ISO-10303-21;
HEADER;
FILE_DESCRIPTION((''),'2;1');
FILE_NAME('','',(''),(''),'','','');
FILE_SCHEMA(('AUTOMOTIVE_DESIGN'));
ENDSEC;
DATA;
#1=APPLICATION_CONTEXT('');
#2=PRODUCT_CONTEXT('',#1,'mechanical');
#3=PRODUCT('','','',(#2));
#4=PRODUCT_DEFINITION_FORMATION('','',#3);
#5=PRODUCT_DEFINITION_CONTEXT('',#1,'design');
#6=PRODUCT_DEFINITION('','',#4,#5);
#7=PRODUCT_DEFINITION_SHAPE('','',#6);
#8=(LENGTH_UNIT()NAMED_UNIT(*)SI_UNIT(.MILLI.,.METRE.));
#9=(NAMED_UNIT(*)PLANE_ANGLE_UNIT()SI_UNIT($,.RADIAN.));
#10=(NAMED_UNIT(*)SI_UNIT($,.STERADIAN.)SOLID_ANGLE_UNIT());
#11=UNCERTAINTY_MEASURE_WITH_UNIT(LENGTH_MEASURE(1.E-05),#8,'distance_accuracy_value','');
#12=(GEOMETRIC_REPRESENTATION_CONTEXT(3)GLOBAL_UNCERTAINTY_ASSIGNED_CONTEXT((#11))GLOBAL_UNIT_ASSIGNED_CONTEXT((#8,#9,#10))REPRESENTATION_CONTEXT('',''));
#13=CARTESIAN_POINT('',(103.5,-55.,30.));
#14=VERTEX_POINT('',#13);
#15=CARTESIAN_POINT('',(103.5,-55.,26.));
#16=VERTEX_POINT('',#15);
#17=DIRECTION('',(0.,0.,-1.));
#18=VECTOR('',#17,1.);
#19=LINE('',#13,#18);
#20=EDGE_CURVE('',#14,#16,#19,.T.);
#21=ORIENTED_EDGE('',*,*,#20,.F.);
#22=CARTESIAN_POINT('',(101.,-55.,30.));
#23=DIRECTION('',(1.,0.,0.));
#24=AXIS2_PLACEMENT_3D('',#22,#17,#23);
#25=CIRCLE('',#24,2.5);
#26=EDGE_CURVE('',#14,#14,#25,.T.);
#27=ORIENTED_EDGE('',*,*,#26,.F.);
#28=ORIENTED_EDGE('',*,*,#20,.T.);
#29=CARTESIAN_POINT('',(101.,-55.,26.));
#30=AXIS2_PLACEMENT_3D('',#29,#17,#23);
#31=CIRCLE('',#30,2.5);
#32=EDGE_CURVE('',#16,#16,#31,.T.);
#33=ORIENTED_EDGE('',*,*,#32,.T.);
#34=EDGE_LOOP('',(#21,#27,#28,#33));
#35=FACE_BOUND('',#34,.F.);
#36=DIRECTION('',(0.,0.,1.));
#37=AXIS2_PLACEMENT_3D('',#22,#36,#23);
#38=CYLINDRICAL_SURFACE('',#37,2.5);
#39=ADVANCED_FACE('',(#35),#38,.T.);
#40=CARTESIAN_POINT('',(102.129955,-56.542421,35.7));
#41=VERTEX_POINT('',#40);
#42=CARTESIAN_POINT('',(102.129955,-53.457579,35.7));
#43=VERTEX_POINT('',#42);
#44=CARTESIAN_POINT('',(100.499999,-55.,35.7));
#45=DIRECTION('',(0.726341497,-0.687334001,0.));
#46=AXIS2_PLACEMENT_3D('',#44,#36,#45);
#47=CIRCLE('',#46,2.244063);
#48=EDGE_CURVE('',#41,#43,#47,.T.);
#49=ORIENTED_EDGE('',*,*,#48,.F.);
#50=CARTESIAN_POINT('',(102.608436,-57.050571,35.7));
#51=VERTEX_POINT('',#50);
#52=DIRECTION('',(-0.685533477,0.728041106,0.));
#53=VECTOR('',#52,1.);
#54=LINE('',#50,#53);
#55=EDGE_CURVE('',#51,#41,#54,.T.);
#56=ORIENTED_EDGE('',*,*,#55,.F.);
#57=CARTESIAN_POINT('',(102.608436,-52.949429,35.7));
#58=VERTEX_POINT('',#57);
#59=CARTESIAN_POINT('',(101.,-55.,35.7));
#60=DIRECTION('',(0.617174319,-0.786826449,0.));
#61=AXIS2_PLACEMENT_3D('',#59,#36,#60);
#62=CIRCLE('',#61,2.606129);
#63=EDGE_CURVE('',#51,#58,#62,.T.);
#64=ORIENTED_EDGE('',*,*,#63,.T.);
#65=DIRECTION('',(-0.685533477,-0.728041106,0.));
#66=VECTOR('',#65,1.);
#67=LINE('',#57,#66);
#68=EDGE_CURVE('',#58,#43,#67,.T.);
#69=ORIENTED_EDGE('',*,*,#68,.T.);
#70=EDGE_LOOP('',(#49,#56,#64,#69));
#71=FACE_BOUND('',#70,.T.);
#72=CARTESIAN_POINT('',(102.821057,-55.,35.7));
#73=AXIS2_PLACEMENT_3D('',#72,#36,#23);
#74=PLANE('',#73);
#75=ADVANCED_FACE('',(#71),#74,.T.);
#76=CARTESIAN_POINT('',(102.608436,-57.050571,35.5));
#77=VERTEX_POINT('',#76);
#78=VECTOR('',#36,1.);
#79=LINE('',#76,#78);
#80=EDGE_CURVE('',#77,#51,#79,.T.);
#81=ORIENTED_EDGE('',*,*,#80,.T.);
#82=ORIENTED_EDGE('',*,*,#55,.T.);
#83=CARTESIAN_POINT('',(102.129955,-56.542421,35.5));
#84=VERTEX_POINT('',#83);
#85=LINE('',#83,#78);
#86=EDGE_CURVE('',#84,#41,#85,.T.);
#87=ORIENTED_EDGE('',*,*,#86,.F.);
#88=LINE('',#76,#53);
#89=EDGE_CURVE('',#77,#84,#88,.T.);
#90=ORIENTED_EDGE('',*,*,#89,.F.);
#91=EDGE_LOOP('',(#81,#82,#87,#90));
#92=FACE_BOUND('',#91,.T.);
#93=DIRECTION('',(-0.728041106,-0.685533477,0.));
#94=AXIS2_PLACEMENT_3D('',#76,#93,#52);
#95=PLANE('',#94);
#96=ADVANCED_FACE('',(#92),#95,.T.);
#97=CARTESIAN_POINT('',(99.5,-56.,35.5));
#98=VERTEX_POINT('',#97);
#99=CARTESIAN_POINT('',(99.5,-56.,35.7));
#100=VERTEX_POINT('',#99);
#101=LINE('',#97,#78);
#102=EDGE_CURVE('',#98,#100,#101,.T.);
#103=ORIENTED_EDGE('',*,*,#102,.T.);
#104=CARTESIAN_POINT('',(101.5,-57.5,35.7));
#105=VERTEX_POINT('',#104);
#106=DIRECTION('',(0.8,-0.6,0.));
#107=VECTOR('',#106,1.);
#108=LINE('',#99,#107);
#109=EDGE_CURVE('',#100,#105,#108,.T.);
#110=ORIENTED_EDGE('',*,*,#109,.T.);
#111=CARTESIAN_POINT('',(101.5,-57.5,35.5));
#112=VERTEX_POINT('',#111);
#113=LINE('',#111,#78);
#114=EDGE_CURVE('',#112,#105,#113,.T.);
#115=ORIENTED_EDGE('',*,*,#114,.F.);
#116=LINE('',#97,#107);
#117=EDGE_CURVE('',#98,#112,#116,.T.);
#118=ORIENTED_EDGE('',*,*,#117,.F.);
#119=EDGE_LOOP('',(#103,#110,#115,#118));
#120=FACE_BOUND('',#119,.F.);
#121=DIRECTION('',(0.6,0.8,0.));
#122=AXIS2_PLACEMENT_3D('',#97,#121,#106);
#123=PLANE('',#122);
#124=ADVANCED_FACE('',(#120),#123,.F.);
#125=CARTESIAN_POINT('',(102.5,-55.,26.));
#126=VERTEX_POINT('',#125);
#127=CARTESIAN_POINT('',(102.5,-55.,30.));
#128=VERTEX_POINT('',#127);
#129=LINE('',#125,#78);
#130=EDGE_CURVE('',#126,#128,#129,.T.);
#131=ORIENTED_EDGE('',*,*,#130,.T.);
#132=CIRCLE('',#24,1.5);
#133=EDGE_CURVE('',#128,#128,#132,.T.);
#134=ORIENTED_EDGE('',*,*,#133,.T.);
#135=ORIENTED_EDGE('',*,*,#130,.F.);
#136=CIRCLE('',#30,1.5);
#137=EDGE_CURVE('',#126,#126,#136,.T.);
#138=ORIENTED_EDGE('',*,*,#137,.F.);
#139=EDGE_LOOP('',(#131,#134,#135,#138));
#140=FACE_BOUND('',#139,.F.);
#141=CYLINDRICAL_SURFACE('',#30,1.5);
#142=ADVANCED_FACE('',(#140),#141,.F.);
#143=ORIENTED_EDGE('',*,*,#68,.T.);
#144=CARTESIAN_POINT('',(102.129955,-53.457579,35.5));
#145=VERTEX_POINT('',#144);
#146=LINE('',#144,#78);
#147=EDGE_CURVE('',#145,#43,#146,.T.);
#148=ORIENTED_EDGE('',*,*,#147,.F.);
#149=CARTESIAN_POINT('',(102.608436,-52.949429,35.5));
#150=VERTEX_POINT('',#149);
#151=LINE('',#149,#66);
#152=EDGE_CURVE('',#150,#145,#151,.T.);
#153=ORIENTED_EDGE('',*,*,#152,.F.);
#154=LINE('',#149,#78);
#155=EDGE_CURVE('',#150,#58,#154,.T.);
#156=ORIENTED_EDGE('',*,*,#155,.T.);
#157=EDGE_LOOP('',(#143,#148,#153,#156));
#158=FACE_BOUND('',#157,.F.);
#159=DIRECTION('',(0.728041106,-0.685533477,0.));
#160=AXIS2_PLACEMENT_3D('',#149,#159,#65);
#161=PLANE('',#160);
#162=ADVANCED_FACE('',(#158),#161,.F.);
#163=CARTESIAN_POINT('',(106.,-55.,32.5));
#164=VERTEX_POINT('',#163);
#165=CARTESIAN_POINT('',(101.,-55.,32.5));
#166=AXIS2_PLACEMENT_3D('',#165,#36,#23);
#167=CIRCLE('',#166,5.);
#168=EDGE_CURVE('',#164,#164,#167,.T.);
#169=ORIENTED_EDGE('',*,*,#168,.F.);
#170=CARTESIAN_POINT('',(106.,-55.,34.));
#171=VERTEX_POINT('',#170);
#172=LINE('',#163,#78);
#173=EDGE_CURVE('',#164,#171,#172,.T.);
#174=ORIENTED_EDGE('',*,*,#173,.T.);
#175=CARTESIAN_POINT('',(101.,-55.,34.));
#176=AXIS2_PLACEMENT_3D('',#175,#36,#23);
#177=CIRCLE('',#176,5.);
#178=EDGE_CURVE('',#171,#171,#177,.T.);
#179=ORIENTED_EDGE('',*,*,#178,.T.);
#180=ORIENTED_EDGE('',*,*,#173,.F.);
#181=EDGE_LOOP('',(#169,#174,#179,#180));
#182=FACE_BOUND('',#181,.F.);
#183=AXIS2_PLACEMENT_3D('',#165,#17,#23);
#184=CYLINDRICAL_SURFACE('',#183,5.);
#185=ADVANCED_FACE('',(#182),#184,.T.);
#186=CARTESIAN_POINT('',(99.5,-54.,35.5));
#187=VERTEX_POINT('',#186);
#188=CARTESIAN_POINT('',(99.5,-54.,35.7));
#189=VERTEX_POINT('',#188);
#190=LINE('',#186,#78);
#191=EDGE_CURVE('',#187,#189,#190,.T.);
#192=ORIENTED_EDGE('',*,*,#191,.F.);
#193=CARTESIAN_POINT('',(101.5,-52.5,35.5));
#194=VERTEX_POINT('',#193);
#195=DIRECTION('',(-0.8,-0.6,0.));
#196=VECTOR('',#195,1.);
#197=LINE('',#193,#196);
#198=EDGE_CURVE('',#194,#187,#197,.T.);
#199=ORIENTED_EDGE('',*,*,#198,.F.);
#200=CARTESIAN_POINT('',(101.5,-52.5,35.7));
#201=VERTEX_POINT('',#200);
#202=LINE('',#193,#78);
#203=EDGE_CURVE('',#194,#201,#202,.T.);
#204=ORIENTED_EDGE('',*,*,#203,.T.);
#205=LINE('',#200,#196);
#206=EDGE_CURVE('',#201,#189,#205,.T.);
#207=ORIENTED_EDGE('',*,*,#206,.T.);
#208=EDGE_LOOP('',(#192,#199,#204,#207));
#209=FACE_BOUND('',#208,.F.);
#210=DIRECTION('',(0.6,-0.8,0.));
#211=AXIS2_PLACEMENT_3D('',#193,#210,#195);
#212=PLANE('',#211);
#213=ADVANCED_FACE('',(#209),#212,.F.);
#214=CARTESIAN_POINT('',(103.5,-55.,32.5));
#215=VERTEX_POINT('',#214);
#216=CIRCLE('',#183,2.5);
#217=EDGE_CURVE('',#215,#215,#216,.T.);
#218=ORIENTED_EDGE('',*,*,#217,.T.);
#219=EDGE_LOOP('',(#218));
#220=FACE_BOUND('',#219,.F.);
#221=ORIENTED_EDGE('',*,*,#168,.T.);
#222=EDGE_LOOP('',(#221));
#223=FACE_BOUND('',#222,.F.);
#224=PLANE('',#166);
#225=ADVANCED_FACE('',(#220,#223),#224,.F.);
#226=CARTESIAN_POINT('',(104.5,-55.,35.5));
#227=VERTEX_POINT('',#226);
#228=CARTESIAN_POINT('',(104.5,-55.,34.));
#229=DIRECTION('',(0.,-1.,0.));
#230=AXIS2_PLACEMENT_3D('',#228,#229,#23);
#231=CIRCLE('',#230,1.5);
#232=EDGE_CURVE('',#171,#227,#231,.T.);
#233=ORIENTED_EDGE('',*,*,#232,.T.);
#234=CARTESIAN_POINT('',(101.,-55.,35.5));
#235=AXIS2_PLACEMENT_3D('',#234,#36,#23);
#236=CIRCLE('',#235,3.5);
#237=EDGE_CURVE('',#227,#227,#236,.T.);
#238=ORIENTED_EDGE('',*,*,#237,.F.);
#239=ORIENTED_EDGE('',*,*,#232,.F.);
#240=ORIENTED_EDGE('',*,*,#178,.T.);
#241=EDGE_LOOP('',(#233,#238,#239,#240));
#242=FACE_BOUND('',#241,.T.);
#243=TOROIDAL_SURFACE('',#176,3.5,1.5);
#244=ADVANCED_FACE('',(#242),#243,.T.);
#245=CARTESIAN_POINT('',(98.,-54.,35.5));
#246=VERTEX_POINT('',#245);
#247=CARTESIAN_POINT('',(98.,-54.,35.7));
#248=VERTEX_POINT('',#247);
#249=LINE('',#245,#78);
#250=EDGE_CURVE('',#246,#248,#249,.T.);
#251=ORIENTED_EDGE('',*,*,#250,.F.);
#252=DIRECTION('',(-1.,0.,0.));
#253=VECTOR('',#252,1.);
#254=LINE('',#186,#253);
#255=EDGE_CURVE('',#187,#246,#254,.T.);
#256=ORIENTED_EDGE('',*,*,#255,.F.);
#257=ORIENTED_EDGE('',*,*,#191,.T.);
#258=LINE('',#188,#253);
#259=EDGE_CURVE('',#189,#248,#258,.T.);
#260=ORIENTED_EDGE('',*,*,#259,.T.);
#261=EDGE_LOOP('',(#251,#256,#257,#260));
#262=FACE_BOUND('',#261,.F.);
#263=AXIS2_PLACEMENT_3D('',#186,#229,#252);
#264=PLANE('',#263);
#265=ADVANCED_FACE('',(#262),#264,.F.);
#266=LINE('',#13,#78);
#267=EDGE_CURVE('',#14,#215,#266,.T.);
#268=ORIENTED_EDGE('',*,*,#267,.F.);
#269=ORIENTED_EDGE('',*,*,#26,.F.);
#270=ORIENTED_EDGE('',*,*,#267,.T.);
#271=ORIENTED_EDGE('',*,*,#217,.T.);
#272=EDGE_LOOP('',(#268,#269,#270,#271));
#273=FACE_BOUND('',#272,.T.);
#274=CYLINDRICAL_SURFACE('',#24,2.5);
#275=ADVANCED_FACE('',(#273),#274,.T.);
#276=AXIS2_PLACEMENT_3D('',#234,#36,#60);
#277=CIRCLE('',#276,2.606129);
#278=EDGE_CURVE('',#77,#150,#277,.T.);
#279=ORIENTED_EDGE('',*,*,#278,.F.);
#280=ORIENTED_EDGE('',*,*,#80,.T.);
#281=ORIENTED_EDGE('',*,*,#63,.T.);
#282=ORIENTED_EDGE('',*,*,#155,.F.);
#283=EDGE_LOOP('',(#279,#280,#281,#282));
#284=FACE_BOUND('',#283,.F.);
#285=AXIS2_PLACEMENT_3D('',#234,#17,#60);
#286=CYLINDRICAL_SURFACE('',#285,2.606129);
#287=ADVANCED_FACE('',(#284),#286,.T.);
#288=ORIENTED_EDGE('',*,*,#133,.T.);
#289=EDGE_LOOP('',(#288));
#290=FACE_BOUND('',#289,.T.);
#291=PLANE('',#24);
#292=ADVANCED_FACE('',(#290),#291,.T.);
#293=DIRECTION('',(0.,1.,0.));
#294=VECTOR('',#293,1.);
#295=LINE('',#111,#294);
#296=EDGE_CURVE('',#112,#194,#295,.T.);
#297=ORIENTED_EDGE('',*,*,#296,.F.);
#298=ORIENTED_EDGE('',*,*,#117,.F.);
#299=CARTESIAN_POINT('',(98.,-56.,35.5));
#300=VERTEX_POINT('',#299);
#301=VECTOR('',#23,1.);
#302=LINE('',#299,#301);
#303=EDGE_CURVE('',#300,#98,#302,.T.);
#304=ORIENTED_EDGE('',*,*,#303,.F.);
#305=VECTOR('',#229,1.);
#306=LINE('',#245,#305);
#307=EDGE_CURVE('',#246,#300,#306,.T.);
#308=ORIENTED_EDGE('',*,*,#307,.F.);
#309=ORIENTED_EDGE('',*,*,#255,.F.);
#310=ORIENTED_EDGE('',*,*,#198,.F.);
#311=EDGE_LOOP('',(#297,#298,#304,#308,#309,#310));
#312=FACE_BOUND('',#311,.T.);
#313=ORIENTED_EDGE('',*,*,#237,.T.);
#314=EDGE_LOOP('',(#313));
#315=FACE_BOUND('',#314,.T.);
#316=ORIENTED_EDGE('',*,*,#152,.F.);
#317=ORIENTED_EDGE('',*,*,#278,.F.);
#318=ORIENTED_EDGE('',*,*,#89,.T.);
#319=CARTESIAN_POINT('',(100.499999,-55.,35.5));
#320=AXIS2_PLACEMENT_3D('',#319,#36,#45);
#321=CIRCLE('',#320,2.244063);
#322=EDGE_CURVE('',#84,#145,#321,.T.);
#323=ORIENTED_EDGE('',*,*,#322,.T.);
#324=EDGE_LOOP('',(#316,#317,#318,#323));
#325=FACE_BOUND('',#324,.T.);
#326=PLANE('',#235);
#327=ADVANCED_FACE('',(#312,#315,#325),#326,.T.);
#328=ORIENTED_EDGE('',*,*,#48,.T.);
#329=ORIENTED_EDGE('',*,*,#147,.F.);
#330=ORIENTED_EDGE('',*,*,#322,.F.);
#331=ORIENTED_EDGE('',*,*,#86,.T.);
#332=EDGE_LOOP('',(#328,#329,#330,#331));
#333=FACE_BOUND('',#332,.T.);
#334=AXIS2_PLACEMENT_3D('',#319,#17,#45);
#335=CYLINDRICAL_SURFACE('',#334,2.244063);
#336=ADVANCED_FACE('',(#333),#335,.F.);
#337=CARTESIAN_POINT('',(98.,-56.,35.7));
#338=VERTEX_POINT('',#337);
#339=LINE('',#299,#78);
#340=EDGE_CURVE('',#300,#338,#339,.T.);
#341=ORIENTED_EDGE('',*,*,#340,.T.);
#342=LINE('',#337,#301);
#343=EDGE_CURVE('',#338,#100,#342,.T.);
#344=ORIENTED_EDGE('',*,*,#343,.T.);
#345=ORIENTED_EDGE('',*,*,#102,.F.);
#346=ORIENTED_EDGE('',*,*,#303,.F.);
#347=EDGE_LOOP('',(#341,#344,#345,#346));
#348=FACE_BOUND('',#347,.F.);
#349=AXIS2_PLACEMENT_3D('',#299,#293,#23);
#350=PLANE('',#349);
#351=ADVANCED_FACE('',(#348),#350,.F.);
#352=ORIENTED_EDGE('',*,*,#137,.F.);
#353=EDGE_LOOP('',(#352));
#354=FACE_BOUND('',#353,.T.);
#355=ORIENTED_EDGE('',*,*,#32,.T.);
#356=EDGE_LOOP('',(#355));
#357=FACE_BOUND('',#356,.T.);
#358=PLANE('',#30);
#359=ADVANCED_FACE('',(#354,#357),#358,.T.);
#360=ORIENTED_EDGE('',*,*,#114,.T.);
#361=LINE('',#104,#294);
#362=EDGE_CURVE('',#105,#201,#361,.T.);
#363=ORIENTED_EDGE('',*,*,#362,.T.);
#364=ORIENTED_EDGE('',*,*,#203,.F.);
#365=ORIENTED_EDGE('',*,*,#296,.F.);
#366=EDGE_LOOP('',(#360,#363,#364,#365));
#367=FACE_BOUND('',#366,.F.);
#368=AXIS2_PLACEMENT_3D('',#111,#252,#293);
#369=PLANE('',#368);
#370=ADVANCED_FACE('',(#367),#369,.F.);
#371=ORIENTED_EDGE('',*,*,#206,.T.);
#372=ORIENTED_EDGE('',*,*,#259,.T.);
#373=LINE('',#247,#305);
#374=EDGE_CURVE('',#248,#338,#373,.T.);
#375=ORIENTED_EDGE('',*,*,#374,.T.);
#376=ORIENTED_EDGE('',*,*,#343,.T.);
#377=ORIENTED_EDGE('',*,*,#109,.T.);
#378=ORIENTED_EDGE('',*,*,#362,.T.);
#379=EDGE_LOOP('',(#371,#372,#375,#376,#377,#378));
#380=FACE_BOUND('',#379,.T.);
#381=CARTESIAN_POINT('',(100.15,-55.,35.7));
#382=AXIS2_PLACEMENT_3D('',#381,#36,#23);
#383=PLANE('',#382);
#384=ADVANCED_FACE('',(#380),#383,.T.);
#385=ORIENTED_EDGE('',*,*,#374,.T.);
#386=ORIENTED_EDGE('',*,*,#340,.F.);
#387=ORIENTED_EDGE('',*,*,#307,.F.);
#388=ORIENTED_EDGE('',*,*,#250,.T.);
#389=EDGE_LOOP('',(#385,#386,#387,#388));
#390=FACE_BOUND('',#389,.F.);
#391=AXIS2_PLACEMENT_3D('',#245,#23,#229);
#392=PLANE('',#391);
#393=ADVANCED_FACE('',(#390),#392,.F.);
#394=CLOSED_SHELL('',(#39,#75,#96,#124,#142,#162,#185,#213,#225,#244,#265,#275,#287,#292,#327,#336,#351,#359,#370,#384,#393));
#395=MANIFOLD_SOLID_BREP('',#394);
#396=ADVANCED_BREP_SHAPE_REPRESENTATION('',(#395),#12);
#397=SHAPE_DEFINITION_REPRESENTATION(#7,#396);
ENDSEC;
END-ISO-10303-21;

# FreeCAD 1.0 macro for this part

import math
import FreeCAD as App
import Part
import Sketcher

V = App.Vector


def edges_at(feature, points):
    """Names of the edges that pass closest to the given points."""
    edges = feature.Shape.Edges
    near = lambda p: min(range(len(edges)), key=lambda i: edges[i].distToShape(Part.Vertex(*p))[0])
    return sorted({f"Edge{near(p) + 1}" for p in points})

doc = App.newDocument("Part")
body = doc.addObject("PartDesign::Body", "Body")

# Sketch on XY plane
sketch1 = doc.addObject("Sketcher::SketchObject", "Sketch")
body.addObject(sketch1)
sketch1.AttachmentSupport = (doc.XY_Plane, [""])
sketch1.MapMode = "FlatFace"
sketch1.AttachmentOffset = App.Placement(V(0, 0, 30), App.Rotation())
sketch1.addGeometry(Part.Circle(V(101, -55, 0), V(0, 0, 1), 2.5), False)
sketch1.addConstraint(Sketcher.Constraint("Diameter", 0, 5.0))
sketch1.addConstraint(Sketcher.Constraint("DistanceX", -1, 1, 0, 3, 101.0))
sketch1.addConstraint(Sketcher.Constraint("DistanceY", 0, 3, -1, 1, 55.0))
pad1 = doc.addObject("PartDesign::Pad", "Pad")
body.addObject(pad1)
pad1.Profile = sketch1
pad1.Length = 2.5

# Sketch on XY plane
sketch2 = doc.addObject("Sketcher::SketchObject", "Sketch001")
body.addObject(sketch2)
sketch2.AttachmentSupport = (doc.XY_Plane, [""])
sketch2.MapMode = "FlatFace"
sketch2.AttachmentOffset = App.Placement(V(0, 0, 32.5), App.Rotation())
sketch2.addGeometry(Part.Circle(V(101, -55, 0), V(0, 0, 1), 5), False)
sketch2.addConstraint(Sketcher.Constraint("Diameter", 0, 10.0))
sketch2.addConstraint(Sketcher.Constraint("DistanceX", -1, 1, 0, 3, 101.0))
sketch2.addConstraint(Sketcher.Constraint("DistanceY", 0, 3, -1, 1, 55.0))
pad2 = doc.addObject("PartDesign::Pad", "Pad001")
body.addObject(pad2)
pad2.Profile = sketch2
pad2.Length = 3
doc.recompute()

fillet = doc.addObject("PartDesign::Fillet", "Fillet")
body.addObject(fillet)
fillet.Base = (pad2, edges_at(pad2, [(96, -55, 35.5)]))
fillet.Radius = 1.5

# Sketch on XY plane
sketch3 = doc.addObject("Sketcher::SketchObject", "Sketch002")
body.addObject(sketch3)
sketch3.AttachmentSupport = (doc.XY_Plane, [""])
sketch3.MapMode = "FlatFace"
sketch3.AttachmentOffset = App.Placement(V(0, 0, 30), App.Rotation())
sketch3.addGeometry(Part.Circle(V(101, -55, 0), V(0, 0, 1), 2.5), False)
sketch3.addConstraint(Sketcher.Constraint("Diameter", 0, 5.0))
sketch3.addConstraint(Sketcher.Constraint("DistanceX", -1, 1, 0, 3, 101.0))
sketch3.addConstraint(Sketcher.Constraint("DistanceY", 0, 3, -1, 1, 55.0))
pad3 = doc.addObject("PartDesign::Pad", "Pad002")
body.addObject(pad3)
pad3.Profile = sketch3
pad3.Length = 4
pad3.Reversed = True

# Sketch on XY plane
sketch4 = doc.addObject("Sketcher::SketchObject", "Sketch003")
body.addObject(sketch4)
sketch4.AttachmentSupport = (doc.XY_Plane, [""])
sketch4.MapMode = "FlatFace"
sketch4.AttachmentOffset = App.Placement(V(0, 0, 26), App.Rotation())
sketch4.addGeometry(Part.Circle(V(101, -55, 0), V(0, 0, 1), 1.5), False)
sketch4.addConstraint(Sketcher.Constraint("Diameter", 0, 3.0))
sketch4.addConstraint(Sketcher.Constraint("DistanceX", -1, 1, 0, 3, 101.0))
sketch4.addConstraint(Sketcher.Constraint("DistanceY", 0, 3, -1, 1, 55.0))
pocket1 = doc.addObject("PartDesign::Pocket", "Pocket")
body.addObject(pocket1)
pocket1.Profile = sketch4
pocket1.Length = 4
pocket1.Reversed = True
body2 = doc.addObject("PartDesign::Body", "Body001")
doc.recompute()

body.Placement = App.Placement(V(75, 0, 0), App.Rotation(V(0, 0, 1), 0))
boolean = doc.addObject("PartDesign::Boolean", "Boolean")
body2.addObject(boolean)
boolean.Type = "Fuse"
boolean.addObjects([body])

# Sketch on XY plane
sketch5 = doc.addObject("Sketcher::SketchObject", "Sketch004")
body2.addObject(sketch5)
sketch5.AttachmentSupport = (doc.getObject("XY_Plane001"), [""])
sketch5.MapMode = "FlatFace"
sketch5.AttachmentOffset = App.Placement(V(0, 0, 35.5), App.Rotation())
sketch5.addGeometry(Part.LineSegment(V(173, -54, 0), V(173, -56, 0)), False)
sketch5.addGeometry(Part.LineSegment(V(173, -56, 0), V(174.5, -56, 0)), False)
sketch5.addGeometry(Part.LineSegment(V(174.5, -56, 0), V(176.5, -57.5, 0)), False)
sketch5.addGeometry(Part.LineSegment(V(176.5, -57.5, 0), V(176.5, -52.5, 0)), False)
sketch5.addGeometry(Part.LineSegment(V(176.5, -52.5, 0), V(174.5, -54, 0)), False)
sketch5.addGeometry(Part.LineSegment(V(174.5, -54, 0), V(173, -54, 0)), False)
sketch5.addGeometry(Part.ArcOfCircle(Part.Circle(V(176, -55, 0), V(0, 0, 1), 2.606129), math.radians(-51.889919), math.radians(51.889919)), False)
sketch5.addGeometry(Part.LineSegment(V(177.608436, -52.949429, 0), V(177.129955, -53.457579, 0)), False)
sketch5.addGeometry(Part.ArcOfCircle(Part.Circle(V(175.499999, -55, 0), V(0, 0, 1), 2.244063), math.radians(-43.419441), math.radians(43.419441)), False)
sketch5.addGeometry(Part.LineSegment(V(177.129955, -56.542421, 0), V(177.608436, -57.050571, 0)), False)
sketch5.addConstraint(Sketcher.Constraint("Coincident", 0, 2, 1, 1))
sketch5.addConstraint(Sketcher.Constraint("Coincident", 1, 2, 2, 1))
sketch5.addConstraint(Sketcher.Constraint("Coincident", 2, 2, 3, 1))
sketch5.addConstraint(Sketcher.Constraint("Coincident", 3, 2, 4, 1))
sketch5.addConstraint(Sketcher.Constraint("Coincident", 4, 2, 5, 1))
sketch5.addConstraint(Sketcher.Constraint("Coincident", 5, 2, 0, 1))
sketch5.addConstraint(Sketcher.Constraint("Coincident", 6, 2, 7, 1))
sketch5.addConstraint(Sketcher.Constraint("Coincident", 7, 2, 8, 2))
sketch5.addConstraint(Sketcher.Constraint("Coincident", 8, 1, 9, 1))
sketch5.addConstraint(Sketcher.Constraint("Coincident", 9, 2, 6, 1))
sketch5.addConstraint(Sketcher.Constraint("Vertical", 0))
sketch5.addConstraint(Sketcher.Constraint("Horizontal", 1))
sketch5.addConstraint(Sketcher.Constraint("Vertical", 3))
sketch5.addConstraint(Sketcher.Constraint("Horizontal", 5))
sketch5.addConstraint(Sketcher.Constraint("Horizontal", 6, 3, 8, 3))
sketch5.addConstraint(Sketcher.Constraint("Vertical", 1, 2, 4, 2))
sketch5.addConstraint(Sketcher.Constraint("Vertical", 7, 2, 8, 1))
sketch5.addConstraint(Sketcher.Constraint("Vertical", 6, 2, 9, 2))
sketch5.addConstraint(Sketcher.Constraint("Equal", 2, 4))
sketch5.addConstraint(Sketcher.Constraint("DistanceY", 0, 2, 0, 1, 2.0))
sketch5.addConstraint(Sketcher.Constraint("DistanceY", 3, 1, 3, 2, 5.0))
sketch5.addConstraint(Sketcher.Constraint("DistanceX", 1, 1, 1, 2, 1.5))
sketch5.addConstraint(Sketcher.Constraint("DistanceX", -1, 1, 6, 3, 176.0))
sketch5.addConstraint(Sketcher.Constraint("DistanceY", 6, 3, -1, 1, 55.0))
sketch5.addConstraint(Sketcher.Constraint("DistanceX", -1, 1, 0, 2, 173.0))
sketch5.addConstraint(Sketcher.Constraint("DistanceY", 0, 2, -1, 1, 56.0))
sketch5.addConstraint(Sketcher.Constraint("DistanceX", 1, 2, 8, 3, 0.999999))
sketch5.addConstraint(Sketcher.Constraint("DistanceX", 1, 2, 2, 2, 2.0))
sketch5.addConstraint(Sketcher.Constraint("Radius", 6, 2.606129))
sketch5.addConstraint(Sketcher.Constraint("Radius", 8, 2.244063))
sketch5.addConstraint(Sketcher.Constraint("Distance", 7, 0.697969))
sketch5.addConstraint(Sketcher.Constraint("DistanceY", 6, 2, -1, 1, 52.949429))
pad4 = doc.addObject("PartDesign::Pad", "Pad003")
body2.addObject(pad4)
pad4.Profile = sketch5
pad4.Length = 0.2
body3 = doc.addObject("PartDesign::Body", "Body002")
doc.recompute()

body2.Placement = App.Placement(V(-75, 0, 0), App.Rotation(V(0, 0, 1), 0))
boolean2 = doc.addObject("PartDesign::Boolean", "Boolean001")
body3.addObject(boolean2)
boolean2.Type = "Fuse"
boolean2.addObjects([body2])

doc.recompute()
